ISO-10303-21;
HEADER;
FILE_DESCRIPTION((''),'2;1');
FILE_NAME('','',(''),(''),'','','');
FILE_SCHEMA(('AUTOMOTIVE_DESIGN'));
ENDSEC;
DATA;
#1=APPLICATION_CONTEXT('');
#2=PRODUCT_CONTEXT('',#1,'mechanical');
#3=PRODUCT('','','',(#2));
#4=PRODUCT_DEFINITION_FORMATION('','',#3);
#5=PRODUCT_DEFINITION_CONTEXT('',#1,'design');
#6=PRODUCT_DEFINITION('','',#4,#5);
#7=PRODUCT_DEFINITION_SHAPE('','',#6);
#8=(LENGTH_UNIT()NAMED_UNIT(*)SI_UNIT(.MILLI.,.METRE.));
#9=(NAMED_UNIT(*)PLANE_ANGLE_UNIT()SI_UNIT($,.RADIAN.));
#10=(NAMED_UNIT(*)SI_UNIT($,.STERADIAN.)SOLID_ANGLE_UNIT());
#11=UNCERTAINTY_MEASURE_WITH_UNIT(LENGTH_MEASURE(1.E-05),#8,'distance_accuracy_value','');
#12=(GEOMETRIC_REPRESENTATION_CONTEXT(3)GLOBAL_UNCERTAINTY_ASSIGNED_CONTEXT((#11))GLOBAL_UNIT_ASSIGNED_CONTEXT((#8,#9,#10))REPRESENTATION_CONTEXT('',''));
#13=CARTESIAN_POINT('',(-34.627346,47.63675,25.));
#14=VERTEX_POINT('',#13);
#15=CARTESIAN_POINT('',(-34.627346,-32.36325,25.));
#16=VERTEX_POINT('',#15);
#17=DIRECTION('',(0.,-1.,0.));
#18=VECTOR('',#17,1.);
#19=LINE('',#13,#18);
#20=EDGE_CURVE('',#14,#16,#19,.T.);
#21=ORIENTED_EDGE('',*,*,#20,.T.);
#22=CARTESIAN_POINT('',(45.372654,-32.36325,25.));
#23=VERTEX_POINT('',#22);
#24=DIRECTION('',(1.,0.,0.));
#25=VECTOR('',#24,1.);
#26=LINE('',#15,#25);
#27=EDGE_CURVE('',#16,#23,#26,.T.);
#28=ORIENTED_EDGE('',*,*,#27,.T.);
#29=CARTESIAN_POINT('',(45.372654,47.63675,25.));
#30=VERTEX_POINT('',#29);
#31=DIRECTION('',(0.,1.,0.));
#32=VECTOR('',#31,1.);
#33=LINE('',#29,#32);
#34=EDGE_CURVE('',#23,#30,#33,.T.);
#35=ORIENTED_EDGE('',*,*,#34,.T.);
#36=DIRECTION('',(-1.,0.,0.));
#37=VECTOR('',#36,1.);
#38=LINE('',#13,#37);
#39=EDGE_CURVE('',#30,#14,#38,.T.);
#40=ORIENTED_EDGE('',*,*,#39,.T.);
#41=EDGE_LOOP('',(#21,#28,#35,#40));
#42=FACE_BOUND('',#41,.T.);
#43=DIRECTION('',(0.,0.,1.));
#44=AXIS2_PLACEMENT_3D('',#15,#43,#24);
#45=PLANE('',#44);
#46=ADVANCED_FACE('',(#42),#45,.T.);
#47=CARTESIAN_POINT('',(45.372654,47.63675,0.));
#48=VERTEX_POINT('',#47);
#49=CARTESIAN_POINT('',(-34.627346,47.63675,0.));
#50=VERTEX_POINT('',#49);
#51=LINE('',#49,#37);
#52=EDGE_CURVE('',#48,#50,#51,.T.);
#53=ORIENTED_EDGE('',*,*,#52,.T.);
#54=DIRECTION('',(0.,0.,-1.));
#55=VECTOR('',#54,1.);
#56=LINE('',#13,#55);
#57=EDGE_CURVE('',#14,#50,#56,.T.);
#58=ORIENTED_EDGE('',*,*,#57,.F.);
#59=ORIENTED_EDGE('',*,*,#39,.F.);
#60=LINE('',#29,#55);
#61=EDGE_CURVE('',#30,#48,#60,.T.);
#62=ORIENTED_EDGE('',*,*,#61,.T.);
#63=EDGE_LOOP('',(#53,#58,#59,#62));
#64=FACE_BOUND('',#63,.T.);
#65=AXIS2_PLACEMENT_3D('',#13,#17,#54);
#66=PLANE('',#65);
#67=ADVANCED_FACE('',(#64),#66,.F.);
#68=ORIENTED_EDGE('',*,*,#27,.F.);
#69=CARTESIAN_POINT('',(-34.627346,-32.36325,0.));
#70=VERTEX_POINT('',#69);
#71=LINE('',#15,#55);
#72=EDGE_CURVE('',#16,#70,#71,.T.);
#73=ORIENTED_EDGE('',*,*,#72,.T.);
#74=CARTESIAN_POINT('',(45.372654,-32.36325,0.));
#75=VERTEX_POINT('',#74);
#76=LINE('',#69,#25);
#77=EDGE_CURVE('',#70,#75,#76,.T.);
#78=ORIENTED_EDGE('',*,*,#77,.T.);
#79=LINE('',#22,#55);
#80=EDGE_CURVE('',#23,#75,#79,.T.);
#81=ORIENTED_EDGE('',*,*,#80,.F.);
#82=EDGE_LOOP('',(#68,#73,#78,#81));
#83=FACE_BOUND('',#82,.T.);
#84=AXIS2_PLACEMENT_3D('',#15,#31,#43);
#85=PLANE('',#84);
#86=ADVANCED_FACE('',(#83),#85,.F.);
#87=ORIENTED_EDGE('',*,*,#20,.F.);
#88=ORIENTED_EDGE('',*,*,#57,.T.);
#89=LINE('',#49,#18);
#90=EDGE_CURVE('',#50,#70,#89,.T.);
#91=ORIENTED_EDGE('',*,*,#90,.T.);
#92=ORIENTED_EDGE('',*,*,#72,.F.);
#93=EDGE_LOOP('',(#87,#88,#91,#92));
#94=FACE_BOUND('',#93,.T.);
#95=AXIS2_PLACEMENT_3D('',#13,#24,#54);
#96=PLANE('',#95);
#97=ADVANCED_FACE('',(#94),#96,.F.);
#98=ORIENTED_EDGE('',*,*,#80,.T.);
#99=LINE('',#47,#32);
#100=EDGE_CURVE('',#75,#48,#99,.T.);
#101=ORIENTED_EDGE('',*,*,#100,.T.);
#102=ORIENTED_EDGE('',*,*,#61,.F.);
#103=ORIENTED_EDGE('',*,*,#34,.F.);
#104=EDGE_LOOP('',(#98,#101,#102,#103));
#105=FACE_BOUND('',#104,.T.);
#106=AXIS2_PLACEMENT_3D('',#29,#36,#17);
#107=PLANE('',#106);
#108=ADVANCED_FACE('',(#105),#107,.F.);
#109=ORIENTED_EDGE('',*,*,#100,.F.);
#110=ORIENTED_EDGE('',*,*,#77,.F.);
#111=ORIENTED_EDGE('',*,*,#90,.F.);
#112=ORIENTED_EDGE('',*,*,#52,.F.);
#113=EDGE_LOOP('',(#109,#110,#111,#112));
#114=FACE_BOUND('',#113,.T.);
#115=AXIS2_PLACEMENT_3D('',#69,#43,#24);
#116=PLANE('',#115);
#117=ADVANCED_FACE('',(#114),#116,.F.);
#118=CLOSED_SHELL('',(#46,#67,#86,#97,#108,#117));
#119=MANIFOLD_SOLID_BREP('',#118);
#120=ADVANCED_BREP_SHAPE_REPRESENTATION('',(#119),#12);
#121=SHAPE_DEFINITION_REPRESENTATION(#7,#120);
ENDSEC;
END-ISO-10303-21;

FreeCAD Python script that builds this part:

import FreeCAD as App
import Part
import Sketcher

doc = App.newDocument("Part")
params = doc.addObject("Spreadsheet::Sheet", "Params")
for row, (alias, value) in enumerate([
    ("sketch1_width", "80 mm"),
    ("pad1_length", "25 mm"),
], start=1):
    params.set(f"A{row}", alias)
    params.set(f"B{row}", "=" + value)
    params.setAlias(f"B{row}", alias)

body = doc.addObject("PartDesign::Body", "Body")

sketch1 = doc.addObject("Sketcher::SketchObject", "Sketch")
body.addObject(sketch1)
sketch1.AttachmentSupport = (doc.XY_Plane, [""])
sketch1.MapMode = "FlatFace"
sketch1.addGeometry([
    Part.LineSegment(App.Vector(-35, 48, 0), App.Vector(-35, -32, 0)),
    Part.LineSegment(App.Vector(-35, -32, 0), App.Vector(45, -32, 0)),
    Part.LineSegment(App.Vector(45, -32, 0), App.Vector(45, 48, 0)),
    Part.LineSegment(App.Vector(45, 48, 0), App.Vector(-35, 48, 0)),
], False)
sketch1.addConstraint([
    Sketcher.Constraint("Coincident", 0, 2, 1, 1),
    Sketcher.Constraint("Coincident", 1, 2, 2, 1),
    Sketcher.Constraint("Coincident", 2, 2, 3, 1),
    Sketcher.Constraint("Coincident", 3, 2, 0, 1),
    Sketcher.Constraint("Vertical", 0),
    Sketcher.Constraint("Horizontal", 1),
    Sketcher.Constraint("Vertical", 2),
    Sketcher.Constraint("Horizontal", 3),
    Sketcher.Constraint("Equal", 3, 0),
    Sketcher.Constraint("DistanceX", 1, 1, 1, 2, 80.0),
    Sketcher.Constraint("DistanceY", 0, 2, -1, 1, 32.36325),
    Sketcher.Constraint("DistanceX", 0, 2, -1, 1, 34.627346),
])
sketch1.setExpression("Constraints[9]", "Params.sketch1_width")
pad1 = doc.addObject("PartDesign::Pad", "Pad")
body.addObject(pad1)
pad1.Profile = sketch1
pad1.setExpression("Length", "Params.pad1_length")

doc.recompute()
